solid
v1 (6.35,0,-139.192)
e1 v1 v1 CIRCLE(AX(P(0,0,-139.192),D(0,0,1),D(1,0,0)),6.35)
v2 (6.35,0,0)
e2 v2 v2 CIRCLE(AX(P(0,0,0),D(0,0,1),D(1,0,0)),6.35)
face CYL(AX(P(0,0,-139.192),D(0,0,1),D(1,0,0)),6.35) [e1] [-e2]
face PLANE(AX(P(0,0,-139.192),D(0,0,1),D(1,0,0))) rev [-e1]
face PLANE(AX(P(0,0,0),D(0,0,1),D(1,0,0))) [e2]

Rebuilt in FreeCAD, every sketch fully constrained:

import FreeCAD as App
import Part
import Sketcher

V = App.Vector
Q = App.Units.Quantity

doc = App.newDocument("Part")
body = doc.addObject("PartDesign::Body", "Body")

sketch1 = doc.addObject("Sketcher::SketchObject", "Sketch")
body.addObject(sketch1)
sketch1.AttachmentSupport = (doc.XY_Plane, [""])
sketch1.MapMode = "FlatFace"
sketch1.addGeometry(Part.Circle(V(0, 0, 0), V(0, 0, 1), 6.35), False)
sketch1.addConstraint(Sketcher.Constraint("Coincident", 0, 3, -1, 1))
sketch1.addConstraint(Sketcher.Constraint("Diameter", 0, Q("0.5 in")))
pad1 = doc.addObject("PartDesign::Pad", "Pad")
body.addObject(pad1)
pad1.Profile = sketch1
pad1.Length = Q("5.48 in")
pad1.Reversed = True

doc.recompute()
